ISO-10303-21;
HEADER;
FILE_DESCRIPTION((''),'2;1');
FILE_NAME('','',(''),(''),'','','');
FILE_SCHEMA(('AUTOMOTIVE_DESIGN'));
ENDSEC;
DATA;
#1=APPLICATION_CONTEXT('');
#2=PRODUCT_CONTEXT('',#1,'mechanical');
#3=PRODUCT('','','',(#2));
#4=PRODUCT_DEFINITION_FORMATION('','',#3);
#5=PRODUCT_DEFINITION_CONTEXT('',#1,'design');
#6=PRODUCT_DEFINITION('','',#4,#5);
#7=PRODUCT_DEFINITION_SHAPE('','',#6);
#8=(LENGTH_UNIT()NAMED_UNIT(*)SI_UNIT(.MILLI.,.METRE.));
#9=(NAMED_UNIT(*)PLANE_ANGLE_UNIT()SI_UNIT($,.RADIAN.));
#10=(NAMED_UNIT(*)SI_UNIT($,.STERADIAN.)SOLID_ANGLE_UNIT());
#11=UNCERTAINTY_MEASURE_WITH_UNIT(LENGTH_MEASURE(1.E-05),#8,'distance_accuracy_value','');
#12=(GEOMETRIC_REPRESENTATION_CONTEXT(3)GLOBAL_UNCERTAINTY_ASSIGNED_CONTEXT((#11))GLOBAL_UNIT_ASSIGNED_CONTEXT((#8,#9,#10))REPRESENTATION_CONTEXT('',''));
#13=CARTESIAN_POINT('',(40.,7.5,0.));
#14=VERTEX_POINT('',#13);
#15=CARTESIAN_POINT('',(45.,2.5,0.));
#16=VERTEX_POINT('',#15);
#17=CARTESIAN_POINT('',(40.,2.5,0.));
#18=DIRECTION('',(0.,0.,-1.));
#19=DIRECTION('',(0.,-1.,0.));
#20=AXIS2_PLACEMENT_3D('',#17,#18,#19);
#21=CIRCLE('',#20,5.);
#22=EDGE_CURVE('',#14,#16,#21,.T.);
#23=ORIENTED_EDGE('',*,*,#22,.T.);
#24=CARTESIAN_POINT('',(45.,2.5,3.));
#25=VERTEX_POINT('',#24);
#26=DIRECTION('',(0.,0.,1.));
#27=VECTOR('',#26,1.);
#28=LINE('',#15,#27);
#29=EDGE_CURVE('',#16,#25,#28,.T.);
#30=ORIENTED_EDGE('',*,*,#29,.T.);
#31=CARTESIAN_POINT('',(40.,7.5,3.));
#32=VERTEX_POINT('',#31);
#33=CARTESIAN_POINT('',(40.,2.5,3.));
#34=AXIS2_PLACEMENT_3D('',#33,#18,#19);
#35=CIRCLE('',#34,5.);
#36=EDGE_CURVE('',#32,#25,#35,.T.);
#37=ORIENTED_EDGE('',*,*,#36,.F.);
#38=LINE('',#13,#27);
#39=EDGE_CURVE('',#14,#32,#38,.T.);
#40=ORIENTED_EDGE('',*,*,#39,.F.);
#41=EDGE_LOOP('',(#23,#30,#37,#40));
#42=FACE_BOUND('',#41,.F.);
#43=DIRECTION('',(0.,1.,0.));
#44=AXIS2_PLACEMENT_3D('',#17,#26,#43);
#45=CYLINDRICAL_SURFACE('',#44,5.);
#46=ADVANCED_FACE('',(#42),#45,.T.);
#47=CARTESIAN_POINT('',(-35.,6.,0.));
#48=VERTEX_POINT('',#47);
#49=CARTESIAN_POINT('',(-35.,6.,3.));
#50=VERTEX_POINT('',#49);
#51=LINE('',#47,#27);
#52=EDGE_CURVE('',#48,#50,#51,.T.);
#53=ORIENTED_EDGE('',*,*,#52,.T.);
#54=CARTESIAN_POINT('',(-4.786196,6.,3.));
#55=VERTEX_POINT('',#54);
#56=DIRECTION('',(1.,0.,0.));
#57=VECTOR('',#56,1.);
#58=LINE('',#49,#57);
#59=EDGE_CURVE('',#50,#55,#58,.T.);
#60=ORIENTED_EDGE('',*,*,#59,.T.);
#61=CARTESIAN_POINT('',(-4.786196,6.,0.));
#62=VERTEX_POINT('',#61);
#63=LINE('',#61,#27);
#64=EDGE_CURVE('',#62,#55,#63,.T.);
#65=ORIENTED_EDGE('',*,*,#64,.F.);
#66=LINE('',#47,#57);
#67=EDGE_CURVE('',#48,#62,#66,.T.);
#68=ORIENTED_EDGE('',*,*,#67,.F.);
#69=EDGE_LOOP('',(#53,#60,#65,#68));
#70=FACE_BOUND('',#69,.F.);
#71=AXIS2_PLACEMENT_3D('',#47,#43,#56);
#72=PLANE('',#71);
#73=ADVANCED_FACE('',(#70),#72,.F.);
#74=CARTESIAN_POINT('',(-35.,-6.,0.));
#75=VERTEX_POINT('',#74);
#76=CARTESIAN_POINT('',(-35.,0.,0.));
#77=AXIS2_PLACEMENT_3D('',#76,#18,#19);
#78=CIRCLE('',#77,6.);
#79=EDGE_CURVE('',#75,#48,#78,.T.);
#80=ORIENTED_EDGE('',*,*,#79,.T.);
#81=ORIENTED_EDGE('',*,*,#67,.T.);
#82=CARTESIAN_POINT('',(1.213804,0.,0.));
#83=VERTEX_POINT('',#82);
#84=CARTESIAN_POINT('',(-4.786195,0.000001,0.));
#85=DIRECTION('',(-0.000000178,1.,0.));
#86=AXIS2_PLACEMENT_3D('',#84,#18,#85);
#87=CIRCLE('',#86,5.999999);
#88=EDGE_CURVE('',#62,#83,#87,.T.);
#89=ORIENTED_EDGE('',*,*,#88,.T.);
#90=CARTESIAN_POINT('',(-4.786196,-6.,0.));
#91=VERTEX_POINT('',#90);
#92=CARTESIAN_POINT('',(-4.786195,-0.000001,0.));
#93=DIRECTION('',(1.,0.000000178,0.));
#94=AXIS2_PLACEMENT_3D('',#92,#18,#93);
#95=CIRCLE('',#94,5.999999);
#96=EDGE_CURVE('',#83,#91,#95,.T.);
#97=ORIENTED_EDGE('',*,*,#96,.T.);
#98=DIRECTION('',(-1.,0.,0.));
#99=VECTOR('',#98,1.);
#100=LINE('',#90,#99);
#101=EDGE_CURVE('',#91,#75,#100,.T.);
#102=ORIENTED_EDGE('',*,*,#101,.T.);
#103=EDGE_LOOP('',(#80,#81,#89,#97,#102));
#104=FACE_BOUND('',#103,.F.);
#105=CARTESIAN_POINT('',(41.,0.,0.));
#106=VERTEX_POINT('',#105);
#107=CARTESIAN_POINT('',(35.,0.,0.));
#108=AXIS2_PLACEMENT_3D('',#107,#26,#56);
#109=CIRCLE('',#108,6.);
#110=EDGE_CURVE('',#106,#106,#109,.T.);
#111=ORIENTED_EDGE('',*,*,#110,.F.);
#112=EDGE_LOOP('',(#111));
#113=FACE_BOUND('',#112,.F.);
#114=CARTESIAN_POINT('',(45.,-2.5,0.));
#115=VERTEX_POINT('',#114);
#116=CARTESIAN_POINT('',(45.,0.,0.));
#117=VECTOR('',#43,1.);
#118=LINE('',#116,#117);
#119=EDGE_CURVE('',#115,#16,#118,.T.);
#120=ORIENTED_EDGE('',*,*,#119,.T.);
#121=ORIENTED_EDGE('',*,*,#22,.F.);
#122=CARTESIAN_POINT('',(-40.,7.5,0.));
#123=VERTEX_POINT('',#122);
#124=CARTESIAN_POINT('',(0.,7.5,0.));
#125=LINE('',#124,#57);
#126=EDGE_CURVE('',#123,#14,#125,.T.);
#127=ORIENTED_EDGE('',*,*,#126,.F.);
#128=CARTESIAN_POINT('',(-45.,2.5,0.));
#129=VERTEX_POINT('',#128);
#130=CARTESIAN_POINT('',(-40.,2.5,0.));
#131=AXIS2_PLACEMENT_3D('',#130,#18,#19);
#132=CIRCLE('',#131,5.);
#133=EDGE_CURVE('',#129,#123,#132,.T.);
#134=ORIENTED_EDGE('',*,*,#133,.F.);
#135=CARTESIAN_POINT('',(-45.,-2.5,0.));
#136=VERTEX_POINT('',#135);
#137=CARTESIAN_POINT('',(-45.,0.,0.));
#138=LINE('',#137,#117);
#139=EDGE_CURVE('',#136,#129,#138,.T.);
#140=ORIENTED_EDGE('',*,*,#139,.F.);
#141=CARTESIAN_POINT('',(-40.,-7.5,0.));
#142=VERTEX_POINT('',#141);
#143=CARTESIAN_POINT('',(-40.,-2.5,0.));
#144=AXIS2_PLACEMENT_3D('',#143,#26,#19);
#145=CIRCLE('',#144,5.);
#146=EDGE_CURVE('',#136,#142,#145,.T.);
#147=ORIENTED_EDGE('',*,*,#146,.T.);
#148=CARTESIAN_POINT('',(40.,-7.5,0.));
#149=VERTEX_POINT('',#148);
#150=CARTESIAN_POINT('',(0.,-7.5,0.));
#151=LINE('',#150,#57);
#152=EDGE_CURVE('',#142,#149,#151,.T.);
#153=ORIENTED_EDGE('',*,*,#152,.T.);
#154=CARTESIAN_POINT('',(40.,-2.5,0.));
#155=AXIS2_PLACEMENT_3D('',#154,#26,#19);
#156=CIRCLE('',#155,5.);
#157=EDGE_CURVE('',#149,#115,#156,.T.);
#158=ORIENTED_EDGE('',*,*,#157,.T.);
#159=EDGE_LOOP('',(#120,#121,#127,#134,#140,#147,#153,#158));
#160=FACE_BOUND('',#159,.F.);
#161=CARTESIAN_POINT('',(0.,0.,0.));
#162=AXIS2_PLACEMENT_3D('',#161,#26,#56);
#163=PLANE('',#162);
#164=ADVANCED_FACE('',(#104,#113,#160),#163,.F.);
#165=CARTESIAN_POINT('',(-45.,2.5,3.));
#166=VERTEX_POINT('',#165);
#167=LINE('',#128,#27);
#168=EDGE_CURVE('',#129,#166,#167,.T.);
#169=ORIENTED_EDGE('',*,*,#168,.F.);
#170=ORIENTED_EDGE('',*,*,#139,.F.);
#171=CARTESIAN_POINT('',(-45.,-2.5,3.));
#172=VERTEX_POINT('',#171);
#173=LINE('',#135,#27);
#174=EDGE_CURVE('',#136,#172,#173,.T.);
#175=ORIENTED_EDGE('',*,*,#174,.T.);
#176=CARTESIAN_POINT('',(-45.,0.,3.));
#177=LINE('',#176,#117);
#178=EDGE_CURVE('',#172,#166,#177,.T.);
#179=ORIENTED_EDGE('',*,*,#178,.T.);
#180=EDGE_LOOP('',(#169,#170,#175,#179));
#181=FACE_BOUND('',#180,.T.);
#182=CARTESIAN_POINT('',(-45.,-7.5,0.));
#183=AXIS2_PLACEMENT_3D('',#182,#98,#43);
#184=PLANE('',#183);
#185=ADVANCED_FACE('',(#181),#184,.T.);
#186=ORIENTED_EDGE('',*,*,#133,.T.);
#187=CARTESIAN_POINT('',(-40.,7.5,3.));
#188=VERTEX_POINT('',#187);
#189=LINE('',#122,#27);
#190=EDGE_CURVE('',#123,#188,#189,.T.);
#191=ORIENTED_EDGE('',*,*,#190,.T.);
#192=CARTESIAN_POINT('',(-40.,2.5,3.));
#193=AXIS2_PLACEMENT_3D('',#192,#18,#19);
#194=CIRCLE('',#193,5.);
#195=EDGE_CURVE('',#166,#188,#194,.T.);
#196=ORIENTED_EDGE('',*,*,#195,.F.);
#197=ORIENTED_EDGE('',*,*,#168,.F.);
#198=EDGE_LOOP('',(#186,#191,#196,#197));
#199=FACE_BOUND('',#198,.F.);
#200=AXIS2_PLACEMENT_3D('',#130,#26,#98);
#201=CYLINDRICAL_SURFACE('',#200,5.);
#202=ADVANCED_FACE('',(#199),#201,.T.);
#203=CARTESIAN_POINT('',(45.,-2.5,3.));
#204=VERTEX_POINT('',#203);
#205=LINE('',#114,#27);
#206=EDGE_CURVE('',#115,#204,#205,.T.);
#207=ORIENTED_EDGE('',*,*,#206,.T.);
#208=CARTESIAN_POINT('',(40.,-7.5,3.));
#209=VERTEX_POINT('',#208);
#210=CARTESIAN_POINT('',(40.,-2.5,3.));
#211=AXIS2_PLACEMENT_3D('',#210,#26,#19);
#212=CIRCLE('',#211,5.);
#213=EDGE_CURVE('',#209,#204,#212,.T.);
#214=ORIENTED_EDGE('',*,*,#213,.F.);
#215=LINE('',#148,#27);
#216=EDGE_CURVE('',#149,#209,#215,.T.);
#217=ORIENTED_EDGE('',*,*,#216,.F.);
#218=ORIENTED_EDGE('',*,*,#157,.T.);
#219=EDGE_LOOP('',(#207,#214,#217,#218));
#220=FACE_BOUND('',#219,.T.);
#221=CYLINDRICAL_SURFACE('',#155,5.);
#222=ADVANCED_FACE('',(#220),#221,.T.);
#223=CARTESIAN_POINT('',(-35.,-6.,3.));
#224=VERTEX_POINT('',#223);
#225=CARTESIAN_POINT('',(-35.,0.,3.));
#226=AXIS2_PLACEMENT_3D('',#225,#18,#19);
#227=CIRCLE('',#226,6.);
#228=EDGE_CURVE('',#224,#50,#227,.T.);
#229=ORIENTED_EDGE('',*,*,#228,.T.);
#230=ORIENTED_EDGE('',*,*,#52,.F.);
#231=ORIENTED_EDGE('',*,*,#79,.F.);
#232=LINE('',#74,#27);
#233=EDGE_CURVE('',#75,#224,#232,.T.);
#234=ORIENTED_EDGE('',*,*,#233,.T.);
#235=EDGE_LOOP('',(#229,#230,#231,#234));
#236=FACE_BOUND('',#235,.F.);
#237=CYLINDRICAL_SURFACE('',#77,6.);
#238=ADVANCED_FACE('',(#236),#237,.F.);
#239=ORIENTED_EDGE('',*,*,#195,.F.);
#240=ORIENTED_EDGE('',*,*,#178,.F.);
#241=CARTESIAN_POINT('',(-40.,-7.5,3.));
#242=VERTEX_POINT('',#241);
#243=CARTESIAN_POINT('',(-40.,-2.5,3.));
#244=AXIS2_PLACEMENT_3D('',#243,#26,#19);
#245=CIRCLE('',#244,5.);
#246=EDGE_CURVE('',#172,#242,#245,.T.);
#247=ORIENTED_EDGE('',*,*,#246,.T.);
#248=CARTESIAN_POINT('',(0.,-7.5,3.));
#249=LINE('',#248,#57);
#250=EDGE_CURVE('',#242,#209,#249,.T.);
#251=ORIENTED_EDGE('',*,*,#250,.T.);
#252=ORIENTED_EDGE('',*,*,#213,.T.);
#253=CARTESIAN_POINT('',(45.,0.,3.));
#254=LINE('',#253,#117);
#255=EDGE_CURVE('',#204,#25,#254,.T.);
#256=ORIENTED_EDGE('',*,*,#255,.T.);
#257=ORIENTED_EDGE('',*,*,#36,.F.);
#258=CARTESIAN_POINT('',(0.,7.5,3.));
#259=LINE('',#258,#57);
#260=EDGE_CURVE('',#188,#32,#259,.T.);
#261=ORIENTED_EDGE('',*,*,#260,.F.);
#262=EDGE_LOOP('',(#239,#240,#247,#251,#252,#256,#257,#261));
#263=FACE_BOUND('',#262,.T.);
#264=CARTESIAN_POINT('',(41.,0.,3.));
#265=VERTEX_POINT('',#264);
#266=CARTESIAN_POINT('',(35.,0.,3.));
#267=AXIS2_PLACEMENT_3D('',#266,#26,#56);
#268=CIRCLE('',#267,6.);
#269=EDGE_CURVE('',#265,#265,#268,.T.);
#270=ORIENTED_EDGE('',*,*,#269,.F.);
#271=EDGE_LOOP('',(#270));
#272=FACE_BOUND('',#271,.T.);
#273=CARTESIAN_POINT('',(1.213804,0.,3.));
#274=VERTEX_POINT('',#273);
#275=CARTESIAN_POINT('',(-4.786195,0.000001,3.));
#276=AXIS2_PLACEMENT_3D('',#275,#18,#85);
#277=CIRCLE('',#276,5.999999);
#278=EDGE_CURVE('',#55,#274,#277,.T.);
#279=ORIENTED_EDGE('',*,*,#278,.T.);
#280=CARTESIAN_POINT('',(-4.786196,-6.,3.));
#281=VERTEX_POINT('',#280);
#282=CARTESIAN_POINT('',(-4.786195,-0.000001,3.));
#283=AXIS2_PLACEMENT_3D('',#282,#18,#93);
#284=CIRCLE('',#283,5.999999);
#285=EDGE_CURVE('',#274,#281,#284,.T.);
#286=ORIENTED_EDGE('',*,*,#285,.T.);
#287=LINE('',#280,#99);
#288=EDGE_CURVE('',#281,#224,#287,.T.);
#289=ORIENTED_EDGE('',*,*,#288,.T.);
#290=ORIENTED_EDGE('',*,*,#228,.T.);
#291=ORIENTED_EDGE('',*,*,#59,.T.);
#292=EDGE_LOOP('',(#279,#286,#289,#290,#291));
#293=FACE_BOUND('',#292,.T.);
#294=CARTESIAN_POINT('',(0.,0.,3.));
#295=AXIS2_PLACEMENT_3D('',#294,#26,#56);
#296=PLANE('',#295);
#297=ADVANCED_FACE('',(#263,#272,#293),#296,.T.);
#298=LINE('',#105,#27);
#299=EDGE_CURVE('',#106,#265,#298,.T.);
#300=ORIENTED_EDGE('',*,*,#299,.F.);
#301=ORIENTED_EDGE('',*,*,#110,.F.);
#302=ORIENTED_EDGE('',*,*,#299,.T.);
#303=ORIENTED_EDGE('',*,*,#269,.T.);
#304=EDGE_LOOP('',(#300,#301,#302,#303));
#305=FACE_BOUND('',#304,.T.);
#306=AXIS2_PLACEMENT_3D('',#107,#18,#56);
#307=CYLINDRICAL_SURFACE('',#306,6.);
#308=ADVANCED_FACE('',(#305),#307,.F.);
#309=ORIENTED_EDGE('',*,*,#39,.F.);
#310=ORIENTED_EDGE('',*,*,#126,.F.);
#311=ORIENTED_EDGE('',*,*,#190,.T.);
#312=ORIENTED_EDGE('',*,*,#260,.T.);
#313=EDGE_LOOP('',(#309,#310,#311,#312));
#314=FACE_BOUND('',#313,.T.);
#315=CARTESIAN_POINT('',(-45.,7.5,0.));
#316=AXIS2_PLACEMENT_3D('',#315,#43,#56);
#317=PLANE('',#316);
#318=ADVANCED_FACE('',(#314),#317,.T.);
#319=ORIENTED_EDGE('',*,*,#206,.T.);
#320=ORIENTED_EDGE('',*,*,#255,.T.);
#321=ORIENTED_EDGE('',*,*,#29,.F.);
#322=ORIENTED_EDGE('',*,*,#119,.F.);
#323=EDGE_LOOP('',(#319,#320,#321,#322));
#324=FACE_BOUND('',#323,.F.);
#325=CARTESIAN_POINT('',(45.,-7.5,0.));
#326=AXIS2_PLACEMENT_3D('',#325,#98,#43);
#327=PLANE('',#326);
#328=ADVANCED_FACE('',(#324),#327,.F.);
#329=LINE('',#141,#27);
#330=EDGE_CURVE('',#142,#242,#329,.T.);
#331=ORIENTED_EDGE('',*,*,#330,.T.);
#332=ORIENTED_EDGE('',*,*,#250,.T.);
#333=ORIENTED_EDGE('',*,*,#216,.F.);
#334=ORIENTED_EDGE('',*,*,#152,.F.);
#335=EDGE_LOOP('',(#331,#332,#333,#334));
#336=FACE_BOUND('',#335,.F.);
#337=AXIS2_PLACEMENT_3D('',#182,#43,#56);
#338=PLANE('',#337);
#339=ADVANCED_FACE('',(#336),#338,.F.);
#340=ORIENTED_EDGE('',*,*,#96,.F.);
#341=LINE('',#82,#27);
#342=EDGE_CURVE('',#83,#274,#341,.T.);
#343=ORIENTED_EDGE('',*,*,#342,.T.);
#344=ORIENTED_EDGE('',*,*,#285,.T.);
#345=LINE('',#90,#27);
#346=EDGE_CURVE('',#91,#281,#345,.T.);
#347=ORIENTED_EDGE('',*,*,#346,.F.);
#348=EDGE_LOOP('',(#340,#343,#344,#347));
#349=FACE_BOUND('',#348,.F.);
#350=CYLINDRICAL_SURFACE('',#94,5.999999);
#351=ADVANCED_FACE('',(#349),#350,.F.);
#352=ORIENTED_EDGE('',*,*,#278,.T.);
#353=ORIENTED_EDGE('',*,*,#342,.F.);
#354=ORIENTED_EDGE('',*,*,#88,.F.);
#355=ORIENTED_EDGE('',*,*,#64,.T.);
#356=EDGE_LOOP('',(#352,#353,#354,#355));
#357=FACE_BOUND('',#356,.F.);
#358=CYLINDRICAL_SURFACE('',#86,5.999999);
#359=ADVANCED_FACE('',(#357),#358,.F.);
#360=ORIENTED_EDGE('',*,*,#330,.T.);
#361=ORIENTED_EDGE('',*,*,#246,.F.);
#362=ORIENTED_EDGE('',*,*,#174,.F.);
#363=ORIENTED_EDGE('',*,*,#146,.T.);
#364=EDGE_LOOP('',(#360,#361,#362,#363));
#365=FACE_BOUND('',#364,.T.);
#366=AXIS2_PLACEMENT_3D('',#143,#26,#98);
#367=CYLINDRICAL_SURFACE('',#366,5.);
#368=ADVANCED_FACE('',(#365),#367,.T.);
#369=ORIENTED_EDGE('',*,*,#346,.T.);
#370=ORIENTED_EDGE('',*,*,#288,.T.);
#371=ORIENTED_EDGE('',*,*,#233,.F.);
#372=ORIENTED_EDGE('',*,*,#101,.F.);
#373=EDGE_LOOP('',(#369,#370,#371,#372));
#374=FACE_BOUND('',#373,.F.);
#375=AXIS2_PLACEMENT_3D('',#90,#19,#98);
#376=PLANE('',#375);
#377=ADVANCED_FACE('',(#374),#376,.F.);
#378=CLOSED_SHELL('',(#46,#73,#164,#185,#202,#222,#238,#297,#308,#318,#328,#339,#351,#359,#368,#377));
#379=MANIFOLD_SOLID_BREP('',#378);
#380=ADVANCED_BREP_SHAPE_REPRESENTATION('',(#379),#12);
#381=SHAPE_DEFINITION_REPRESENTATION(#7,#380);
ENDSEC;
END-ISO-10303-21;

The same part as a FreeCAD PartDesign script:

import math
import FreeCAD as App
import Part
import Sketcher

V = App.Vector


def edges_at(feature, points):
    """Names of the edges that pass closest to the given points."""
    edges = feature.Shape.Edges
    near = lambda p: min(range(len(edges)), key=lambda i: edges[i].distToShape(Part.Vertex(*p))[0])
    return sorted({f"Edge{near(p) + 1}" for p in points})

doc = App.newDocument("Part")
body = doc.addObject("PartDesign::Body", "Body")

# Sketch on XY plane
sketch1 = body.newObject("Sketcher::SketchObject", "Sketch")
sketch1.AttachmentSupport = (doc.getObject("XY_Plane"), [""])
sketch1.MapMode = "FlatFace"
sketch1.addGeometry([
    Part.LineSegment(V(-45, 7.5, 0), V(-45, -7.5, 0)),  # 0
    Part.LineSegment(V(-45, -7.5, 0), V(45, -7.5, 0)),  # 1
    Part.LineSegment(V(45, -7.5, 0), V(45, 7.5, 0)),  # 2
    Part.LineSegment(V(45, 7.5, 0), V(-45, 7.5, 0)),  # 3
    Part.LineSegment(V(-4.786196, -6, 0), V(-35, -6, 0)),  # 4
    Part.ArcOfCircle(Part.Circle(V(-35, 0, 0), V(0, 0, 1), 6), math.radians(90), math.radians(270)),  # 5
    Part.LineSegment(V(-35, 6, 0), V(-4.786196, 6, 0)),  # 6
    Part.ArcOfCircle(Part.Circle(V(-4.786195, 0.000001, 0), V(0, 0, 1), 5.999999), math.radians(-0.00001), math.radians(90.00001)),  # 7
    Part.ArcOfCircle(Part.Circle(V(-4.786195, -0.000001, 0), V(0, 0, 1), 5.999999), math.radians(-90.00001), math.radians(0.00001)),  # 8
    Part.Circle(V(35, 0, 0), V(0, 0, 1), 6),  # 9
], False)
sketch1.addConstraint([
    Sketcher.Constraint("Coincident", 0, 2, 1, 1),
    Sketcher.Constraint("Coincident", 1, 2, 2, 1),
    Sketcher.Constraint("Coincident", 2, 2, 3, 1),
    Sketcher.Constraint("Coincident", 3, 2, 0, 1),
    Sketcher.Constraint("Tangent", 4, 2, 5, 2),
    Sketcher.Constraint("Tangent", 5, 1, 6, 1),
    Sketcher.Constraint("Tangent", 6, 2, 7, 2),
    Sketcher.Constraint("Tangent", 7, 1, 8, 2),
    Sketcher.Constraint("Tangent", 8, 1, 4, 1),
    Sketcher.Constraint("Vertical", 0),
    Sketcher.Constraint("Horizontal", 1),
    Sketcher.Constraint("Vertical", 2),
    Sketcher.Constraint("Horizontal", 3),
    Sketcher.Constraint("Horizontal", 4),
    Sketcher.Constraint("Horizontal", 6),
    Sketcher.Constraint("Equal", 5, 7),
    Sketcher.Constraint("Equal", 8, 9),
    Sketcher.Constraint("Symmetric", 5, 3, 9, 3, -1, 1),
    Sketcher.Constraint("Symmetric", 0, 2, 2, 2, -1, 1),
    Sketcher.Constraint("PointOnObject", 5, 3, -1),
    Sketcher.Constraint("PointOnObject", 7, 1, -1),
    Sketcher.Constraint("Diameter", 9, 12.0),
    Sketcher.Constraint("DistanceX", 1, 1, 1, 2, 90.0),
    Sketcher.Constraint("DistanceY", 0, 2, 0, 1, 15.0),
    Sketcher.Constraint("DistanceX", 5, 3, -1, 1, 35.0),
    Sketcher.Constraint("DistanceX", 4, 2, 4, 1, 30.213804),
])
pad1 = body.newObject("PartDesign::Pad", "Pad")
pad1.Profile = sketch1
pad1.Length = 3
doc.recompute()

fillet = body.newObject("PartDesign::Fillet", "Fillet")
fillet.Base = (pad1, edges_at(pad1, [
    (-45, -7.5, 1.5),
    (-45, 7.5, 1.5),
    (45, -7.5, 1.5),
    (45, 7.5, 1.5),
]))
fillet.Radius = 5

doc.recompute()
